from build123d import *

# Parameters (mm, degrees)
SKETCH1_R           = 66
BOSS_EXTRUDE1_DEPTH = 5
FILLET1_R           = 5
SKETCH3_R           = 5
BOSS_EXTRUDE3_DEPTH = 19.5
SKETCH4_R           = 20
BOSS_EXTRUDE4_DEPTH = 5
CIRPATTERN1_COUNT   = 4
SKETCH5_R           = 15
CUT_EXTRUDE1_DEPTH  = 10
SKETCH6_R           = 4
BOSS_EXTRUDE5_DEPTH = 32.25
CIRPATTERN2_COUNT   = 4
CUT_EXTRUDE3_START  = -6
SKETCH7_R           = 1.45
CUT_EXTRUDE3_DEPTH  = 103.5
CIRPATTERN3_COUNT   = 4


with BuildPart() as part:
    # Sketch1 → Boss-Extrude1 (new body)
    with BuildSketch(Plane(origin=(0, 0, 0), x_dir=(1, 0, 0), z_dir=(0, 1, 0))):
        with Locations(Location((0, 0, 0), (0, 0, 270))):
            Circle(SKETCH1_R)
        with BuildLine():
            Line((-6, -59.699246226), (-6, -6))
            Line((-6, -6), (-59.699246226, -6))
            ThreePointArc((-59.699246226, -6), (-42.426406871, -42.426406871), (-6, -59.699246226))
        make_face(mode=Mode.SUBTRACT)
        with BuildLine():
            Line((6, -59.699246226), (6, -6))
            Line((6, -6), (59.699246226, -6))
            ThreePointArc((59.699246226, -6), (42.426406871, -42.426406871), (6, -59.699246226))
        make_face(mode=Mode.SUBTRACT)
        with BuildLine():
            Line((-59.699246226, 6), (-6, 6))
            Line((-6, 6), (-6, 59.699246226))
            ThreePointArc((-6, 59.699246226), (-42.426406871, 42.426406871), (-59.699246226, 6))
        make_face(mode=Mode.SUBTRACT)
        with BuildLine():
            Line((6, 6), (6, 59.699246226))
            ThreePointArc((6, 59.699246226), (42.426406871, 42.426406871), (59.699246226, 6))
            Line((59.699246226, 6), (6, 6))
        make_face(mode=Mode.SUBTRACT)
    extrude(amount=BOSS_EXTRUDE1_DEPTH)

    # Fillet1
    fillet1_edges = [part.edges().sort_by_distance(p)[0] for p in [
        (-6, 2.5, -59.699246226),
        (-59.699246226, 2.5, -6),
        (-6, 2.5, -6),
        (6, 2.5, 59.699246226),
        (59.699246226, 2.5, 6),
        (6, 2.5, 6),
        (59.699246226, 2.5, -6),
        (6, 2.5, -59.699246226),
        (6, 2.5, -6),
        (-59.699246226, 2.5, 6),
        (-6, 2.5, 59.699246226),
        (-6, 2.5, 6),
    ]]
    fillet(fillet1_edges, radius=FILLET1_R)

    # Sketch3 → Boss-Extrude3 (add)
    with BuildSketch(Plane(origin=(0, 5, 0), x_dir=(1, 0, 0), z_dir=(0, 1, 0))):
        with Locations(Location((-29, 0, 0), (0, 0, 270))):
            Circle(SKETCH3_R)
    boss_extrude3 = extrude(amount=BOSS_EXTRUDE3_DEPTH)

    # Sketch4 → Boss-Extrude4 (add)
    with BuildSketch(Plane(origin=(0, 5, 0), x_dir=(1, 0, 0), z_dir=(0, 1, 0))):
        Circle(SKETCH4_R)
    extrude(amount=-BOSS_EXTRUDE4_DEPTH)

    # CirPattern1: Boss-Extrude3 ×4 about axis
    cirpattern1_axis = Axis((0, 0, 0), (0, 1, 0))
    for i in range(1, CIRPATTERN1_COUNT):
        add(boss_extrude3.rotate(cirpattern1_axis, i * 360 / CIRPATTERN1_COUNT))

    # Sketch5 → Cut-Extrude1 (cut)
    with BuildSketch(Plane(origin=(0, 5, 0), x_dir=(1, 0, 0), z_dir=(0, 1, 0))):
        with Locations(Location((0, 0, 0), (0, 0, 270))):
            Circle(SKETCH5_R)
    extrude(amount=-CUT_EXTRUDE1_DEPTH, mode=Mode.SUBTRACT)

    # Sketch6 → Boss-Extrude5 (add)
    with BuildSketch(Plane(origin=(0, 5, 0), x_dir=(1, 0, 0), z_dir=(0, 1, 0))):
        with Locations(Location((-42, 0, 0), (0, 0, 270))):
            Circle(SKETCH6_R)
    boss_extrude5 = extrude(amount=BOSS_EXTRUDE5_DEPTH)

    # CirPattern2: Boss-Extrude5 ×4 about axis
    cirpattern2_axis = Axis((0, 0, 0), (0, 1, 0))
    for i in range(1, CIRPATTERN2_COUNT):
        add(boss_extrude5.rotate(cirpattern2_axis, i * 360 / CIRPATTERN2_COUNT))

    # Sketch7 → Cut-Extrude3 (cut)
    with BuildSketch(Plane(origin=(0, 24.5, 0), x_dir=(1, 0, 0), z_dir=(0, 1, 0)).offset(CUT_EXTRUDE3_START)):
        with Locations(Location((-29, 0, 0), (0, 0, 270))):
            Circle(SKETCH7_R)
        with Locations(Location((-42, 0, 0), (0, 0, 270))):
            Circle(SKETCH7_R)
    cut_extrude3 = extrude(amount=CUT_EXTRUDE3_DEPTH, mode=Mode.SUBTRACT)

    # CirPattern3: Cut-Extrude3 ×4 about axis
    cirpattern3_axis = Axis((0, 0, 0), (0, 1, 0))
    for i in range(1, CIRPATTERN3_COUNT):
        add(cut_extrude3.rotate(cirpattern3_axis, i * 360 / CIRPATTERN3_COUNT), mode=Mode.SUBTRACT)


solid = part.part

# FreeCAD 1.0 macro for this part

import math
import FreeCAD as App
import Part
import Sketcher
from FreeCAD import Vector
Q = App.Units.Quantity


def edges_at(feature, points):
    """Names of the edges that pass closest to the given points."""
    edges = feature.Shape.Edges
    near = lambda p: min(range(len(edges)), key=lambda i: edges[i].distToShape(Part.Vertex(*p))[0])
    return sorted({f"Edge{near(p) + 1}" for p in points})

doc = App.newDocument("Part")
body = doc.addObject("PartDesign::Body", "Body")

sketch1 = body.newObject("Sketcher::SketchObject", "Sketch")
sketch1.AttachmentSupport = (doc.getObject("XZ_Plane"), [""])
sketch1.MapMode = "FlatFace"
sketch1.addGeometry(Part.Circle(Vector(0, 0, 0), Vector(0, 0, 1), 66), False)
sketch1.addGeometry(Part.LineSegment(Vector(-6, -6, 0), Vector(-60, -6, 0)), False)
sketch1.addGeometry(Part.ArcOfCircle(Part.Circle(Vector(0, 0, 0), Vector(0, 0, 1), 60), math.radians(-174), math.radians(-96)), False)
sketch1.addGeometry(Part.LineSegment(Vector(-6, -60, 0), Vector(-6, -6, 0)), False)
sketch1.addGeometry(Part.LineSegment(Vector(-6, 6, 0), Vector(-6, 60, 0)), False)
sketch1.addGeometry(Part.ArcOfCircle(Part.Circle(Vector(0, 0, 0), Vector(0, 0, 1), 60), math.radians(96), math.radians(174)), False)
sketch1.addGeometry(Part.LineSegment(Vector(-60, 6, 0), Vector(-6, 6, 0)), False)
sketch1.addGeometry(Part.LineSegment(Vector(60, -6, 0), Vector(6, -6, 0)), False)
sketch1.addGeometry(Part.LineSegment(Vector(6, -6, 0), Vector(6, -60, 0)), False)
sketch1.addGeometry(Part.ArcOfCircle(Part.Circle(Vector(0, 0, 0), Vector(0, 0, 1), 60), math.radians(-84), math.radians(-6)), False)
sketch1.addGeometry(Part.ArcOfCircle(Part.Circle(Vector(0, 0, 0), Vector(0, 0, 1), 60), math.radians(6), math.radians(84)), False)
sketch1.addGeometry(Part.LineSegment(Vector(6, 60, 0), Vector(6, 6, 0)), False)
sketch1.addGeometry(Part.LineSegment(Vector(6, 6, 0), Vector(60, 6, 0)), False)
sketch1.addConstraint(Sketcher.Constraint("Coincident", 1, 2, 2, 1))
sketch1.addConstraint(Sketcher.Constraint("Coincident", 2, 2, 3, 1))
sketch1.addConstraint(Sketcher.Constraint("Coincident", 3, 2, 1, 1))
sketch1.addConstraint(Sketcher.Constraint("Coincident", 4, 2, 5, 1))
sketch1.addConstraint(Sketcher.Constraint("Coincident", 5, 2, 6, 1))
sketch1.addConstraint(Sketcher.Constraint("Coincident", 6, 2, 4, 1))
sketch1.addConstraint(Sketcher.Constraint("Coincident", 7, 2, 8, 1))
sketch1.addConstraint(Sketcher.Constraint("Coincident", 8, 2, 9, 1))
sketch1.addConstraint(Sketcher.Constraint("Coincident", 9, 2, 7, 1))
sketch1.addConstraint(Sketcher.Constraint("Coincident", 10, 2, 11, 1))
sketch1.addConstraint(Sketcher.Constraint("Coincident", 11, 2, 12, 1))
sketch1.addConstraint(Sketcher.Constraint("Coincident", 12, 2, 10, 1))
sketch1.addConstraint(Sketcher.Constraint("Horizontal", 1))
sketch1.addConstraint(Sketcher.Constraint("Vertical", 3))
sketch1.addConstraint(Sketcher.Constraint("Vertical", 4))
sketch1.addConstraint(Sketcher.Constraint("Horizontal", 6))
sketch1.addConstraint(Sketcher.Constraint("Horizontal", 7))
sketch1.addConstraint(Sketcher.Constraint("Vertical", 8))
sketch1.addConstraint(Sketcher.Constraint("Vertical", 11))
sketch1.addConstraint(Sketcher.Constraint("Horizontal", 12))
sketch1.addConstraint(Sketcher.Constraint("Coincident", 0, 3, -1, 1))
sketch1.addConstraint(Sketcher.Constraint("Coincident", 2, 3, -1, 1))
sketch1.addConstraint(Sketcher.Constraint("Coincident", 5, 3, -1, 1))
sketch1.addConstraint(Sketcher.Constraint("Coincident", 9, 3, -1, 1))
sketch1.addConstraint(Sketcher.Constraint("Coincident", 10, 3, -1, 1))
sketch1.addConstraint(Sketcher.Constraint("Equal", 2, 5))
sketch1.addConstraint(Sketcher.Constraint("Equal", 5, 9))
sketch1.addConstraint(Sketcher.Constraint("Equal", 9, 10))
sketch1.addConstraint(Sketcher.Constraint("Symmetric", 6, 2, 7, 2, -1, 1))
sketch1.addConstraint(Sketcher.Constraint("Symmetric", 3, 2, 11, 2, -1, 1))
sketch1.addConstraint(Sketcher.Constraint("Symmetric", 3, 2, 7, 2, -2))
sketch1.addConstraint(Sketcher.Constraint("Equal", 12, 3))
sketch1.addConstraint(Sketcher.Constraint("Diameter", 0, Q("132 mm")))
sketch1.addConstraint(Sketcher.Constraint("Radius", 2, Q("60 mm")))
sketch1.addConstraint(Sketcher.Constraint("DistanceY", 1, 2, -1, 1, Q("6 mm")))
pad1 = body.newObject("PartDesign::Pad", "Pad")
pad1.Profile = sketch1
pad1.Length = 5
pad1.Reversed = True
doc.recompute()

fillet = body.newObject("PartDesign::Fillet", "Fillet")
fillet.Base = (pad1, edges_at(pad1, [
    (-6, 2.5, -59.699),
    (-59.699, 2.5, -6),
    (-6, 2.5, -6),
    (6, 2.5, 59.699),
    (59.699, 2.5, 6),
    (6, 2.5, 6),
    (59.699, 2.5, -6),
    (6, 2.5, -59.699),
    (6, 2.5, -6),
    (-59.699, 2.5, 6),
    (-6, 2.5, 59.699),
    (-6, 2.5, 6),
]))
fillet.Radius = 5

sketch2 = body.newObject("Sketcher::SketchObject", "Sketch001")
sketch2.AttachmentSupport = (doc.getObject("XZ_Plane"), [""])
sketch2.MapMode = "FlatFace"
sketch2.AttachmentOffset = App.Placement(Vector(0, 0, -5), App.Rotation())
sketch2.addGeometry(Part.Circle(Vector(-29, 0, 0), Vector(0, 0, 1), 5), False)
sketch2.addConstraint(Sketcher.Constraint("PointOnObject", 0, 3, -1))
sketch2.addConstraint(Sketcher.Constraint("Diameter", 0, Q("10 mm")))
sketch2.addConstraint(Sketcher.Constraint("DistanceX", 0, 3, -1, 1, Q("29 mm")))
pad2 = body.newObject("PartDesign::Pad", "Pad001")
pad2.Profile = sketch2
pad2.Length = 19.5
pad2.Reversed = True

sketch3 = body.newObject("Sketcher::SketchObject", "Sketch002")
sketch3.AttachmentSupport = (doc.getObject("XZ_Plane"), [""])
sketch3.MapMode = "FlatFace"
sketch3.AttachmentOffset = App.Placement(Vector(0, 0, -5), App.Rotation())
sketch3.addGeometry(Part.Circle(Vector(0, 0, 0), Vector(0, 0, 1), 20), False)
sketch3.addConstraint(Sketcher.Constraint("Coincident", 0, 3, -1, 1))
sketch3.addConstraint(Sketcher.Constraint("Diameter", 0, Q("40 mm")))
pad3 = body.newObject("PartDesign::Pad", "Pad002")
pad3.Profile = sketch3
pad3.Length = 5
doc.recompute()

polarpattern = body.newObject("PartDesign::PolarPattern", "PolarPattern")
polarpattern.Originals = [pad2]
polarpattern.Axis = (doc.getObject("Y_Axis"), [""])
polarpattern.Angle = 360
polarpattern.Occurrences = 4
body.Tip = polarpattern

sketch4 = body.newObject("Sketcher::SketchObject", "Sketch003")
sketch4.AttachmentSupport = (doc.getObject("XZ_Plane"), [""])
sketch4.MapMode = "FlatFace"
sketch4.AttachmentOffset = App.Placement(Vector(0, 0, -5), App.Rotation())
sketch4.addGeometry(Part.Circle(Vector(0, 0, 0), Vector(0, 0, 1), 15), False)
sketch4.addConstraint(Sketcher.Constraint("Coincident", 0, 3, -1, 1))
sketch4.addConstraint(Sketcher.Constraint("Diameter", 0, Q("30 mm")))
pocket1 = body.newObject("PartDesign::Pocket", "Pocket")
pocket1.Profile = sketch4
pocket1.Length = 10
pocket1.Reversed = True

sketch5 = body.newObject("Sketcher::SketchObject", "Sketch004")
sketch5.AttachmentSupport = (doc.getObject("XZ_Plane"), [""])
sketch5.MapMode = "FlatFace"
sketch5.AttachmentOffset = App.Placement(Vector(0, 0, -5), App.Rotation())
sketch5.addGeometry(Part.Circle(Vector(-42, 0, 0), Vector(0, 0, 1), 4), False)
sketch5.addConstraint(Sketcher.Constraint("PointOnObject", 0, 3, -1))
sketch5.addConstraint(Sketcher.Constraint("Diameter", 0, Q("8 mm")))
sketch5.addConstraint(Sketcher.Constraint("DistanceX", 0, 3, -1, 1, Q("42 mm")))
pad4 = body.newObject("PartDesign::Pad", "Pad003")
pad4.Profile = sketch5
pad4.Length = 32.25
pad4.Reversed = True
doc.recompute()

polarpattern2 = body.newObject("PartDesign::PolarPattern", "PolarPattern001")
polarpattern2.Originals = [pad4]
polarpattern2.Axis = (doc.getObject("Y_Axis"), [""])
polarpattern2.Angle = 360
polarpattern2.Occurrences = 4
body.Tip = polarpattern2

sketch6 = body.newObject("Sketcher::SketchObject", "Sketch005")
sketch6.AttachmentSupport = (doc.getObject("XZ_Plane"), [""])
sketch6.MapMode = "FlatFace"
sketch6.AttachmentOffset = App.Placement(Vector(0, 0, -18.5), App.Rotation())
sketch6.addGeometry(Part.Circle(Vector(-29, 0, 0), Vector(0, 0, 1), 1.4), False)
sketch6.addGeometry(Part.Circle(Vector(-42, 0, 0), Vector(0, 0, 1), 1.4), False)
sketch6.addConstraint(Sketcher.Constraint("Equal", 0, 1))
sketch6.addConstraint(Sketcher.Constraint("PointOnObject", 0, 3, -1))
sketch6.addConstraint(Sketcher.Constraint("PointOnObject", 1, 3, -1))
sketch6.addConstraint(Sketcher.Constraint("Diameter", 0, Q("2.9 mm")))
sketch6.addConstraint(Sketcher.Constraint("DistanceX", 0, 3, -1, 1, Q("29 mm")))
sketch6.addConstraint(Sketcher.Constraint("DistanceX", 1, 3, -1, 1, Q("42 mm")))
pocket2 = body.newObject("PartDesign::Pocket", "Pocket001")
pocket2.Profile = sketch6
pocket2.Length = 103.5
doc.recompute()

polarpattern3 = body.newObject("PartDesign::PolarPattern", "PolarPattern002")
polarpattern3.Originals = [pocket2]
polarpattern3.Axis = (doc.getObject("Y_Axis"), [""])
polarpattern3.Angle = 360
polarpattern3.Occurrences = 4
body.Tip = polarpattern3

doc.recompute()
